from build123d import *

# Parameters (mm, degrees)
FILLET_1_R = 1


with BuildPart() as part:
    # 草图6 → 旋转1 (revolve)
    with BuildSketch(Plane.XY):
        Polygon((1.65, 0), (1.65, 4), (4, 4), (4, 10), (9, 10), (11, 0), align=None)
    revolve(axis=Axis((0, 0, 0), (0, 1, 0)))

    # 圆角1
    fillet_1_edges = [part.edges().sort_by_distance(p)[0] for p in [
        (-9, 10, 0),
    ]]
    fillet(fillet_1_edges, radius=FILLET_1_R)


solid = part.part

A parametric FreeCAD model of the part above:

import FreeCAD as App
import Part
import Sketcher

V = App.Vector


def edges_at(feature, points):
    """Names of the edges that pass closest to the given points."""
    edges = feature.Shape.Edges
    near = lambda p: min(range(len(edges)), key=lambda i: edges[i].distToShape(Part.Vertex(*p))[0])
    return sorted({f"Edge{near(p) + 1}" for p in points})


def add_polygon(sketch, points):
    """Adds a closed chain of lines whose ends are joined by coincident constraints."""
    first, n = sketch.GeometryCount, len(points)
    for a, b in zip(points, points[1:] + points[:1]):
        sketch.addGeometry(Part.LineSegment(App.Vector(*a, 0), App.Vector(*b, 0)), False)
    for i in range(n):
        sketch.addConstraint(Sketcher.Constraint("Coincident", first + i, 2, first + (i + 1) % n, 1))

doc = App.newDocument("Part")
body = doc.addObject("PartDesign::Body", "Body")

sketch1 = body.newObject("Sketcher::SketchObject", "Sketch")
sketch1.AttachmentSupport = (doc.getObject("XY_Plane"), [""])
sketch1.MapMode = "FlatFace"
add_polygon(sketch1, [(1.65, 4), (1.65, 0), (11, 0), (9, 10), (4, 10), (4, 4)])
sketch1.addConstraint(Sketcher.Constraint("Vertical", 0))
sketch1.addConstraint(Sketcher.Constraint("Horizontal", 1))
sketch1.addConstraint(Sketcher.Constraint("Horizontal", 3))
sketch1.addConstraint(Sketcher.Constraint("Vertical", 4))
sketch1.addConstraint(Sketcher.Constraint("Horizontal", 5))
sketch1.addConstraint(Sketcher.Constraint("PointOnObject", 0, 2, -1))
sketch1.addConstraint(Sketcher.Constraint("DistanceX", 3, 2, 3, 1, 5.0))
sketch1.addConstraint(Sketcher.Constraint("DistanceY", 0, 2, 0, 1, 4.0))
sketch1.addConstraint(Sketcher.Constraint("DistanceY", 4, 2, 4, 1, 6.0))
sketch1.addConstraint(Sketcher.Constraint("DistanceX", -1, 1, 1, 2, 11.0))
sketch1.addConstraint(Sketcher.Constraint("DistanceX", -1, 1, 2, 2, 9.0))
sketch1.addConstraint(Sketcher.Constraint("DistanceX", 1, 1, 1, 2, 9.35))
revolution = body.newObject("PartDesign::Revolution", "Revolution")
revolution.Profile = sketch1
revolution.ReferenceAxis = (sketch1, ["V_Axis"])
revolution.Angle = 360
doc.recompute()

fillet = body.newObject("PartDesign::Fillet", "Fillet")
fillet.Base = (revolution, edges_at(revolution, [(-9, 10, 0)]))
fillet.Radius = 1

doc.recompute()
